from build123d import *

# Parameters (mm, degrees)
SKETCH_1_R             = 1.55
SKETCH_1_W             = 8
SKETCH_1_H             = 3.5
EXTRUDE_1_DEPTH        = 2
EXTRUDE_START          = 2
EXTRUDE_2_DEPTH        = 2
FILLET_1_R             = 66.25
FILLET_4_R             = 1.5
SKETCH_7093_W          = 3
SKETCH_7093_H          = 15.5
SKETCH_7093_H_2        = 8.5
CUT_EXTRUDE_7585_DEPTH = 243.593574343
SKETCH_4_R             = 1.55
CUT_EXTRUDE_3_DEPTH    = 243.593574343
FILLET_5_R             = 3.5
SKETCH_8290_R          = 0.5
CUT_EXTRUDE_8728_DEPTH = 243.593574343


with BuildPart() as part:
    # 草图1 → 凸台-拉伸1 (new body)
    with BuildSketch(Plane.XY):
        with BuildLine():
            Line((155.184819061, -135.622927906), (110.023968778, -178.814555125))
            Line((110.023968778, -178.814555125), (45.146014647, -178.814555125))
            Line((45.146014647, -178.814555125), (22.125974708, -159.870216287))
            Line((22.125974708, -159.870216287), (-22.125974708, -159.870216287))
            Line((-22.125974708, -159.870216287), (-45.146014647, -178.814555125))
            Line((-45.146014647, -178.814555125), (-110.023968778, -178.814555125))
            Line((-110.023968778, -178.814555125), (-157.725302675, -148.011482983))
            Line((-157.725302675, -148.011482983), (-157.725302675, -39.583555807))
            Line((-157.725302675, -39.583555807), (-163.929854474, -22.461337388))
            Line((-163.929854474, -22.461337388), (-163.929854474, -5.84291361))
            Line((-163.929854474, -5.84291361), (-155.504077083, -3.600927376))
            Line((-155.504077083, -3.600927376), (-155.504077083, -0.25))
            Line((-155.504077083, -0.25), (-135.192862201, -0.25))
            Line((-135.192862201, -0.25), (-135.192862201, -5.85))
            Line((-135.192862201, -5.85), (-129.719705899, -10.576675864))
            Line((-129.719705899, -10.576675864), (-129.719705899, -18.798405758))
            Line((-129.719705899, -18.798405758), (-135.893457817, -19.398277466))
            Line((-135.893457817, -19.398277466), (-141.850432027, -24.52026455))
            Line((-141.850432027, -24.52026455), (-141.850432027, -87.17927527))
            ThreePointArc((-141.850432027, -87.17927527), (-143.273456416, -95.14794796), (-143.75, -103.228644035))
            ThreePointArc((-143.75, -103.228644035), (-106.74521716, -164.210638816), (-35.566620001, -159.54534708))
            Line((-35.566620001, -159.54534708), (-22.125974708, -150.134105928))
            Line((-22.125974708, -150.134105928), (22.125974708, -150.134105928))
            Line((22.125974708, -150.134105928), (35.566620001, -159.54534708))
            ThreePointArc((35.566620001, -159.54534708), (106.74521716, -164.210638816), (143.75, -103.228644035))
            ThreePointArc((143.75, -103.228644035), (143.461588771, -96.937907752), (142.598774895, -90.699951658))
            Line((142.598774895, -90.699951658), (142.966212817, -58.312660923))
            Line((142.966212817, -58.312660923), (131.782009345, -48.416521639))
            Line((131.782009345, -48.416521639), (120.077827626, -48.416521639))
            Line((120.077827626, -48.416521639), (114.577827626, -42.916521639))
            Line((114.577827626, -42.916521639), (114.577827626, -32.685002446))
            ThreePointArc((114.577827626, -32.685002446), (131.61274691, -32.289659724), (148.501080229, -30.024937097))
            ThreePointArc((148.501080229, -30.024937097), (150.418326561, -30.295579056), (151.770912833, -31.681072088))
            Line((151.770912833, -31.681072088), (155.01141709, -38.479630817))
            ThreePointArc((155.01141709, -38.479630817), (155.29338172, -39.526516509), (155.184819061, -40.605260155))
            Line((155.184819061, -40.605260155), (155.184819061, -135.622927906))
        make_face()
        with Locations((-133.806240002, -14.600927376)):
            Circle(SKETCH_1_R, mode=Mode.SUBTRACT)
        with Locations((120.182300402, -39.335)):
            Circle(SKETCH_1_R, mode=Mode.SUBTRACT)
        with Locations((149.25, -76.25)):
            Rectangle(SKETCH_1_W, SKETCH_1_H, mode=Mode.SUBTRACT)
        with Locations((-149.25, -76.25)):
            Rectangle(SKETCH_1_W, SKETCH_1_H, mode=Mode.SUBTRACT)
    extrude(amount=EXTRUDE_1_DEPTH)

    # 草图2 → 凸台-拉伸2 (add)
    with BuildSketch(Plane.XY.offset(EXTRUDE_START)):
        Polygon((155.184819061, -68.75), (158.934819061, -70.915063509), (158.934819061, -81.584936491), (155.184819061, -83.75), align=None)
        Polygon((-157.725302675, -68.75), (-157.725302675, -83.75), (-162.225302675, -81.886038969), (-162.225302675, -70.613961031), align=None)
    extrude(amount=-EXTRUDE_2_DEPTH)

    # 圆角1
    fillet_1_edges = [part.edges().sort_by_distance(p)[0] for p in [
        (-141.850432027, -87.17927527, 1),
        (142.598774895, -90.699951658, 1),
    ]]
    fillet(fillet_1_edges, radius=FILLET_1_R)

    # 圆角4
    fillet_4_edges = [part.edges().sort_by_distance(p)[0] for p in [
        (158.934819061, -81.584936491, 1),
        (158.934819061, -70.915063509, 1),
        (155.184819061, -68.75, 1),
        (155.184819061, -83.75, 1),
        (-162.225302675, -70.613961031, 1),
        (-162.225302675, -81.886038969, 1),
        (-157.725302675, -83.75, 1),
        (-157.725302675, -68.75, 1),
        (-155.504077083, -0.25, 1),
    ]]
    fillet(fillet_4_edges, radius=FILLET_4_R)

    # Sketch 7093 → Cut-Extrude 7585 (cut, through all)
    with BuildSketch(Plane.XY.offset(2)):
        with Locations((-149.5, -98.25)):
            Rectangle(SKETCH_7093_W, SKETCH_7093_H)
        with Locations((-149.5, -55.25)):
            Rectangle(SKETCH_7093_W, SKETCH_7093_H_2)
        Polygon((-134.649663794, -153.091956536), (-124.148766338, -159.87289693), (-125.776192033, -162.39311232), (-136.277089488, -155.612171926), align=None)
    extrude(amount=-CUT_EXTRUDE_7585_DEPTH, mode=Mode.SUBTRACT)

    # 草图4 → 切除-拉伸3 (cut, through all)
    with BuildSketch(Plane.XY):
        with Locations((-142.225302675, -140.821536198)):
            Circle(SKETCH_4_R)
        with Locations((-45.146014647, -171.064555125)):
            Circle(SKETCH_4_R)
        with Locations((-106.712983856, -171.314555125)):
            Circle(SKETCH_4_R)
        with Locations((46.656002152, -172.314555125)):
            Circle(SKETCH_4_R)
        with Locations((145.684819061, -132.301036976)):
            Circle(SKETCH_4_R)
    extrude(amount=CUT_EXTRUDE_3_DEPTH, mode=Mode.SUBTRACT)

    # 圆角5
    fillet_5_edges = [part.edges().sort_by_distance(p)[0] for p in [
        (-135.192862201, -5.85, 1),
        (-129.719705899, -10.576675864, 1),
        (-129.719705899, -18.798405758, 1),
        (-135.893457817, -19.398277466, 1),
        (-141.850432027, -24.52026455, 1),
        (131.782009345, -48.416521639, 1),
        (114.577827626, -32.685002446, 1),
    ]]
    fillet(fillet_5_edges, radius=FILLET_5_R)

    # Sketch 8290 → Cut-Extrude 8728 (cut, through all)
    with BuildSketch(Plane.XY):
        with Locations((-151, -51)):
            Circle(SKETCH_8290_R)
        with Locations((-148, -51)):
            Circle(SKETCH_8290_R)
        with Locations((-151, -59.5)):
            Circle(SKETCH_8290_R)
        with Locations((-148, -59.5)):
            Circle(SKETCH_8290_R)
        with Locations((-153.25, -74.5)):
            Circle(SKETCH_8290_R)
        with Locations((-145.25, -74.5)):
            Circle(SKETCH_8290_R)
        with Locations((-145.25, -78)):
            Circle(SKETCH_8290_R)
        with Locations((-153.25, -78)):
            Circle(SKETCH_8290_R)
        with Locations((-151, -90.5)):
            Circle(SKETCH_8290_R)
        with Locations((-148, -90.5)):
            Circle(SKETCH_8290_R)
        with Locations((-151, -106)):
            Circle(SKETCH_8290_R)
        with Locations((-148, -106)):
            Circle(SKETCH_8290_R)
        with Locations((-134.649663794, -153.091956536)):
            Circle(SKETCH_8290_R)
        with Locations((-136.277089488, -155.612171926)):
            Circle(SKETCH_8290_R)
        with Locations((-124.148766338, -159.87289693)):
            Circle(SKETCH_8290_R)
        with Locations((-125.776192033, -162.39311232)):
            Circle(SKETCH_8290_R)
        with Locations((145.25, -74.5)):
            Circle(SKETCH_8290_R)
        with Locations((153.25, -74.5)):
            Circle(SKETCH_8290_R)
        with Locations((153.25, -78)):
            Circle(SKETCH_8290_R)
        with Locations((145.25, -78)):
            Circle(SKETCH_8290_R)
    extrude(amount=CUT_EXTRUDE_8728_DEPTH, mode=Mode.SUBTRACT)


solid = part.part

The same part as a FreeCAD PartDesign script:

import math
import FreeCAD as App
import Part
import Sketcher

V = App.Vector
Q = App.Units.Quantity


def edges_at(feature, points):
    """Names of the edges that pass closest to the given points."""
    edges = feature.Shape.Edges
    near = lambda p: min(range(len(edges)), key=lambda i: edges[i].distToShape(Part.Vertex(*p))[0])
    return sorted({f"Edge{near(p) + 1}" for p in points})

doc = App.newDocument("Part")
params = doc.addObject("Spreadsheet::Sheet", "Params")
for row, (alias, value) in enumerate([
    ("sketch1_radius", "3 mm"),
    ("sketch1_radius2", "3 mm"),
    ("sketch1_diameter", "3.1 mm"),
    ("sketch1_diameter2", "3.1 mm"),
    ("sketch1_width", "8 mm"),
    ("pad1_length", "2 mm"),
    ("sketch2_height", "15 mm"),
    ("pad2_length", "2 mm"),
    ("fillet_radius", "66.25 mm"),
    ("fillet2_radius", "1.5 mm"),
    ("sketch3_width", "3 mm"),
    ("sketch3_length", "3 mm"),
    ("sketch3_height", "15.5 mm"),
    ("sketch3_height2", "8.5 mm"),
    ("sketch3_length2", "12.5 mm"),
    ("sketch4_diameter", "3.1 mm"),
    ("fillet3_radius", "3.5 mm"),
    ("sketch5_diameter", "1 mm"),
], start=1):
    params.set(f"A{row}", alias)
    params.set(f"B{row}", "=" + value)
    params.setAlias(f"B{row}", alias)

body = doc.addObject("PartDesign::Body", "Body")

# Sketch on XY plane
sketch1 = body.newObject("Sketcher::SketchObject", "Sketch")
sketch1.AttachmentSupport = (doc.getObject("XY_Plane"), [""])
sketch1.MapMode = "FlatFace"
sketch1.addGeometry([
    Part.LineSegment(V(110.023969, -178.814555, 0), V(155.184819, -135.622928, 0)),  # 0
    Part.LineSegment(V(155.184819, -135.622928, 0), V(155.184819, -40.60526, 0)),  # 1
    Part.ArcOfCircle(Part.Circle(V(152.303314, -39.770437, 0), V(0, 0, 1), 3), math.radians(-16.157251), math.radians(25.484606)),  # 2
    Part.LineSegment(V(155.011417, -38.479631, 0), V(151.770913, -31.681072, 0)),  # 3
    Part.ArcOfCircle(Part.Circle(V(149.06281, -32.971878, 0), V(0, 0, 1), 3), math.radians(25.484606), math.radians(100.791949)),  # 4
    Part.ArcOfCircle(Part.Circle(V(119.508186, 122.077257, 0), V(0, 0, 1), 154.840774), math.radians(-91.82469), math.radians(-79.208051)),  # 5
    Part.LineSegment(V(114.577828, -32.685002, 0), V(114.577828, -42.916522, 0)),  # 6
    Part.LineSegment(V(114.577828, -42.916522, 0), V(120.077828, -48.416522, 0)),  # 7
    Part.LineSegment(V(120.077828, -48.416522, 0), V(131.782009, -48.416522, 0)),  # 8
    Part.LineSegment(V(131.782009, -48.416522, 0), V(142.966213, -58.312661, 0)),  # 9
    Part.LineSegment(V(142.966213, -58.312661, 0), V(142.598775, -90.699952, 0)),  # 10
    Part.ArcOfCircle(Part.Circle(V(75, -103.228644, 0), V(0, 0, 1), 68.75), math.radians(0), math.radians(10.5)),  # 11
    Part.ArcOfCircle(Part.Circle(V(75, -103.228644, 0), V(0, 0, 1), 68.75), math.radians(-125), math.radians(0)),  # 12
    Part.LineSegment(V(35.56662, -159.545347, 0), V(22.125975, -150.134106, 0)),  # 13
    Part.LineSegment(V(22.125975, -150.134106, 0), V(-22.125975, -150.134106, 0)),  # 14
    Part.LineSegment(V(-22.125975, -150.134106, 0), V(-35.56662, -159.545347, 0)),  # 15
    Part.ArcOfCircle(Part.Circle(V(-75, -103.228644, 0), V(0, 0, 1), 68.75), math.radians(180), math.radians(305)),  # 16
    Part.ArcOfCircle(Part.Circle(V(-75, -103.228644, 0), V(0, 0, 1), 68.75), math.radians(166.5), math.radians(180)),  # 17
    Part.LineSegment(V(-141.850432, -87.179275, 0), V(-141.850432, -24.520265, 0)),  # 18
    Part.LineSegment(V(-141.850432, -24.520265, 0), V(-135.893458, -19.398277, 0)),  # 19
    Part.LineSegment(V(-135.893458, -19.398277, 0), V(-129.719706, -18.798406, 0)),  # 20
    Part.LineSegment(V(-129.719706, -18.798406, 0), V(-129.719706, -10.576676, 0)),  # 21
    Part.LineSegment(V(-129.719706, -10.576676, 0), V(-135.192862, -5.85, 0)),  # 22
    Part.LineSegment(V(-135.192862, -5.85, 0), V(-135.192862, -0.25, 0)),  # 23
    Part.LineSegment(V(-135.192862, -0.25, 0), V(-155.504077, -0.25, 0)),  # 24
    Part.LineSegment(V(-155.504077, -0.25, 0), V(-155.504077, -3.600927, 0)),  # 25
    Part.LineSegment(V(-155.504077, -3.600927, 0), V(-163.929854, -5.842914, 0)),  # 26
    Part.LineSegment(V(-163.929854, -5.842914, 0), V(-163.929854, -22.461337, 0)),  # 27
    Part.LineSegment(V(-163.929854, -22.461337, 0), V(-157.725303, -39.583556, 0)),  # 28
    Part.LineSegment(V(-157.725303, -39.583556, 0), V(-157.725303, -148.011483, 0)),  # 29
    Part.LineSegment(V(-157.725303, -148.011483, 0), V(-110.023969, -178.814555, 0)),  # 30
    Part.LineSegment(V(-110.023969, -178.814555, 0), V(-45.146015, -178.814555, 0)),  # 31
    Part.LineSegment(V(-45.146015, -178.814555, 0), V(-22.125975, -159.870216, 0)),  # 32
    Part.LineSegment(V(-22.125975, -159.870216, 0), V(22.125975, -159.870216, 0)),  # 33
    Part.LineSegment(V(22.125975, -159.870216, 0), V(45.146015, -178.814555, 0)),  # 34
    Part.LineSegment(V(45.146015, -178.814555, 0), V(110.023969, -178.814555, 0)),  # 35
    Part.LineSegment(V(145.25, -78, 0), V(145.25, -74.5, 0)),  # 36
    Part.LineSegment(V(145.25, -74.5, 0), V(153.25, -74.5, 0)),  # 37
    Part.LineSegment(V(153.25, -74.5, 0), V(153.25, -78, 0)),  # 38
    Part.LineSegment(V(153.25, -78, 0), V(145.25, -78, 0)),  # 39
    Part.LineSegment(V(-153.25, -78, 0), V(-153.25, -74.5, 0)),  # 40
    Part.LineSegment(V(-153.25, -74.5, 0), V(-145.25, -74.5, 0)),  # 41
    Part.LineSegment(V(-145.25, -74.5, 0), V(-145.25, -78, 0)),  # 42
    Part.LineSegment(V(-145.25, -78, 0), V(-153.25, -78, 0)),  # 43
    Part.Circle(V(120.1823, -39.335, 0), V(0, 0, 1), 1.55),  # 44
    Part.Circle(V(-133.80624, -14.600927, 0), V(0, 0, 1), 1.55),  # 45
], False)
sketch1.addConstraint([
    Sketcher.Constraint("Coincident", 0, 2, 1, 1),
    Sketcher.Constraint("Coincident", 1, 2, 2, 1),
    Sketcher.Constraint("Coincident", 2, 2, 3, 1),
    Sketcher.Constraint("Coincident", 3, 2, 4, 1),
    Sketcher.Constraint("Coincident", 4, 2, 5, 2),
    Sketcher.Constraint("Coincident", 5, 1, 6, 1),
    Sketcher.Constraint("Coincident", 6, 2, 7, 1),
    Sketcher.Constraint("Coincident", 7, 2, 8, 1),
    Sketcher.Constraint("Coincident", 8, 2, 9, 1),
    Sketcher.Constraint("Coincident", 9, 2, 10, 1),
    Sketcher.Constraint("Coincident", 10, 2, 11, 2),
    Sketcher.Constraint("Coincident", 11, 1, 12, 2),
    Sketcher.Constraint("Coincident", 12, 1, 13, 1),
    Sketcher.Constraint("Coincident", 13, 2, 14, 1),
    Sketcher.Constraint("Coincident", 14, 2, 15, 1),
    Sketcher.Constraint("Coincident", 15, 2, 16, 2),
    Sketcher.Constraint("Coincident", 16, 1, 17, 2),
    Sketcher.Constraint("Coincident", 17, 1, 18, 1),
    Sketcher.Constraint("Coincident", 18, 2, 19, 1),
    Sketcher.Constraint("Coincident", 19, 2, 20, 1),
    Sketcher.Constraint("Coincident", 20, 2, 21, 1),
    Sketcher.Constraint("Coincident", 21, 2, 22, 1),
    Sketcher.Constraint("Coincident", 22, 2, 23, 1),
    Sketcher.Constraint("Coincident", 23, 2, 24, 1),
    Sketcher.Constraint("Coincident", 24, 2, 25, 1),
    Sketcher.Constraint("Coincident", 25, 2, 26, 1),
    Sketcher.Constraint("Coincident", 26, 2, 27, 1),
    Sketcher.Constraint("Coincident", 27, 2, 28, 1),
    Sketcher.Constraint("Coincident", 28, 2, 29, 1),
    Sketcher.Constraint("Coincident", 29, 2, 30, 1),
    Sketcher.Constraint("Coincident", 30, 2, 31, 1),
    Sketcher.Constraint("Coincident", 31, 2, 32, 1),
    Sketcher.Constraint("Coincident", 32, 2, 33, 1),
    Sketcher.Constraint("Coincident", 33, 2, 34, 1),
    Sketcher.Constraint("Coincident", 34, 2, 35, 1),
    Sketcher.Constraint("Coincident", 35, 2, 0, 1),
    Sketcher.Constraint("Coincident", 36, 2, 37, 1),
    Sketcher.Constraint("Coincident", 37, 2, 38, 1),
    Sketcher.Constraint("Coincident", 38, 2, 39, 1),
    Sketcher.Constraint("Coincident", 39, 2, 36, 1),
    Sketcher.Constraint("Coincident", 40, 2, 41, 1),
    Sketcher.Constraint("Coincident", 41, 2, 42, 1),
    Sketcher.Constraint("Coincident", 42, 2, 43, 1),
    Sketcher.Constraint("Coincident", 43, 2, 40, 1),
    Sketcher.Constraint("Vertical", 1),
    Sketcher.Constraint("Vertical", 6),
    Sketcher.Constraint("Horizontal", 8),
    Sketcher.Constraint("Horizontal", 14),
    Sketcher.Constraint("Vertical", 18),
    Sketcher.Constraint("Vertical", 21),
    Sketcher.Constraint("Vertical", 23),
    Sketcher.Constraint("Horizontal", 24),
    Sketcher.Constraint("Vertical", 25),
    Sketcher.Constraint("Vertical", 27),
    Sketcher.Constraint("Vertical", 29),
    Sketcher.Constraint("Horizontal", 31),
    Sketcher.Constraint("Horizontal", 33),
    Sketcher.Constraint("Horizontal", 35),
    Sketcher.Constraint("Vertical", 36),
    Sketcher.Constraint("Horizontal", 37),
    Sketcher.Constraint("Vertical", 38),
    Sketcher.Constraint("Horizontal", 39),
    Sketcher.Constraint("Vertical", 40),
    Sketcher.Constraint("Horizontal", 41),
    Sketcher.Constraint("Vertical", 42),
    Sketcher.Constraint("Horizontal", 43),
    Sketcher.Constraint("Coincident", 12, 3, 11, 3),
    Sketcher.Constraint("Coincident", 17, 3, 16, 3),
    Sketcher.Constraint("Radius", 2, 3.0),
    Sketcher.Constraint("Radius", 4, 3.0),
    Sketcher.Constraint("Diameter", 44, 3.1),
    Sketcher.Constraint("Diameter", 45, 3.1),
    Sketcher.Constraint("DistanceX", 37, 1, 37, 2, 8.0),
    Sketcher.Constraint("DistanceX", 41, 1, 41, 2, 8.0),
    Sketcher.Constraint("Radius", 11, 68.75),
    Sketcher.Constraint("Radius", 16, 68.75),
    Sketcher.Constraint("DistanceY", 23, 1, 23, 2, 5.6),
    Sketcher.Constraint("DistanceY", 36, 1, 36, 2, 3.5),
    Sketcher.Constraint("DistanceY", 40, 1, 40, 2, 3.5),
    Sketcher.Constraint("DistanceX", -1, 1, 11, 3, 75.0),
    Sketcher.Constraint("DistanceX", 16, 3, -1, 1, 75.0),
    Sketcher.Constraint("DistanceY", 38, 2, -1, 1, 78.0),
    Sketcher.Constraint("DistanceY", 42, 2, -1, 1, 78.0),
    Sketcher.Constraint("DistanceY", 45, 3, 25, 2, 11.0),
    Sketcher.Constraint("DistanceX", 6, 2, 7, 2, 5.5),
    Sketcher.Constraint("DistanceY", 7, 2, 6, 2, 5.5),
    Sketcher.Constraint("DistanceX", 11, 1, 36, 2, 1.5),
    Sketcher.Constraint("DistanceX", 40, 2, 16, 1, 9.5),
    Sketcher.Constraint("DistanceY", 22, 2, -1, 1, 5.85),
    Sketcher.Constraint("Distance", 13, 16.407998),
    Sketcher.Constraint("Distance", 15, 16.407998),
    Sketcher.Constraint("DistanceY", 44, 3, -1, 1, 39.335),
    Sketcher.Constraint("Radius", 5, 154.840774),
    Sketcher.Constraint("DistanceX", 8, 1, 8, 2, 11.704182),
    Sketcher.Constraint("DistanceX", 14, 2, 14, 1, 44.251949),
    Sketcher.Constraint("DistanceX", 33, 1, 33, 2, 44.251949),
    Sketcher.Constraint("DistanceY", 6, 2, 6, 1, 10.231519),
    Sketcher.Constraint("DistanceY", 18, 1, 18, 2, 62.659011),
    Sketcher.Constraint("DistanceY", 21, 1, 21, 2, 8.22173),
    Sketcher.Constraint("DistanceX", -1, 1, 44, 3, 120.1823),
    Sketcher.Constraint("DistanceY", 11, 3, 5, 3, 225.305901),
    Sketcher.Constraint("DistanceY", 16, 3, 5, 3, 225.305901),
    Sketcher.Constraint("DistanceX", 2, 2, 1, 2, 0.173402),
    Sketcher.Constraint("DistanceX", 3, 2, 2, 3, 0.532401),
    Sketcher.Constraint("DistanceY", 2, 3, 4, 2, 9.745499),
    Sketcher.Constraint("DistanceX", 8, 2, 4, 3, 17.280801),
    Sketcher.Constraint("DistanceX", 9, 2, 2, 3, 9.337102),
    Sketcher.Constraint("DistanceY", 9, 2, 1, 2, 17.707401),
    Sketcher.Constraint("DistanceX", 12, 1, 0, 2, 119.618199),
    Sketcher.Constraint("DistanceY", 19, 2, 21, 2, 8.821602),
    Sketcher.Constraint("DistanceY", 17, 1, 21, 2, 76.602599),
    Sketcher.Constraint("Distance", 0, 62.490152),
    Sketcher.Constraint("Distance", 22, 7.23166),
    Sketcher.Constraint("Distance", 30, 56.782449),
    Sketcher.Constraint("Distance", 32, 29.81292),
    Sketcher.Constraint("Distance", 34, 29.81292),
    Sketcher.Constraint("DistanceX", 24, 2, 24, 1, 20.311215),
    Sketcher.Constraint("DistanceX", 31, 1, 31, 2, 64.877954),
    Sketcher.Constraint("DistanceX", 35, 1, 35, 2, 64.877954),
    Sketcher.Constraint("DistanceY", 1, 1, 1, 2, 95.017668),
    Sketcher.Constraint("DistanceY", 25, 2, 25, 1, 3.350927),
    Sketcher.Constraint("DistanceY", 27, 2, 27, 1, 16.618424),
    Sketcher.Constraint("DistanceY", 29, 2, 29, 1, 108.427927),
    Sketcher.Constraint("DistanceX", -1, 1, 4, 3, 149.06281),
    Sketcher.Constraint("DistanceX", 45, 3, -1, 1, 133.80624),
    Sketcher.Constraint("DistanceX", -1, 1, 0, 2, 155.184819),
    Sketcher.Constraint("DistanceY", 1, 2, -1, 1, 40.60526),
    Sketcher.Constraint("DistanceY", 2, 2, -1, 1, 38.479631),
    Sketcher.Constraint("DistanceX", -1, 1, 4, 2, 148.50108),
    Sketcher.Constraint("DistanceY", 6, 2, -1, 1, 42.916522),
    Sketcher.Constraint("DistanceY", 10, 2, -1, 1, 90.699952),
    Sketcher.Constraint("DistanceX", 15, 2, -1, 1, 35.56662),
    Sketcher.Constraint("DistanceX", 30, 2, -1, 1, 110.023969),
    Sketcher.Constraint("DistanceX", -1, 1, 35, 2, 110.023969),
    Sketcher.Constraint("DistanceY", 14, 2, 16, 1, 46.905462),
    Sketcher.Constraint("DistanceY", 16, 1, 17, 1, 16.049369),
    Sketcher.Constraint("DistanceX", 19, 2, 20, 2, 6.173752),
    Sketcher.Constraint("DistanceX", 18, 2, 22, 2, 6.65757),
    Sketcher.Constraint("DistanceY", 18, 2, 26, 2, 18.677351),
    Sketcher.Constraint("DistanceX", 27, 2, 28, 2, 6.204552),
    Sketcher.Constraint("DistanceY", 28, 2, 27, 2, 17.122218),
    Sketcher.Constraint("DistanceX", 28, 2, 18, 2, 15.874871),
    Sketcher.Constraint("DistanceY", 35, 2, 11, 1, 75.585911),
])
sketch1.setExpression("Constraints[68]", "Params.sketch1_radius")
sketch1.setExpression("Constraints[69]", "Params.sketch1_radius2")
sketch1.setExpression("Constraints[70]", "Params.sketch1_diameter")
sketch1.setExpression("Constraints[71]", "Params.sketch1_diameter2")
sketch1.setExpression("Constraints[72]", "Params.sketch1_width")
pad1 = body.newObject("PartDesign::Pad", "Pad")
pad1.Profile = sketch1
pad1.setExpression("Length", "Params.pad1_length")

# Sketch on XY plane
sketch2 = body.newObject("Sketcher::SketchObject", "Sketch001")
sketch2.AttachmentSupport = (doc.getObject("XY_Plane"), [""])
sketch2.MapMode = "FlatFace"
sketch2.AttachmentOffset = App.Placement(V(0, 0, 2), App.Rotation())
sketch2.addGeometry([
    Part.LineSegment(V(158.9, -70.9, 0), V(155.2, -68.8, 0)),  # 0
    Part.LineSegment(V(155.2, -68.8, 0), V(155.2, -83.8, 0)),  # 1
    Part.LineSegment(V(155.2, -83.8, 0), V(158.9, -81.6, 0)),  # 2
    Part.LineSegment(V(158.9, -81.6, 0), V(158.9, -70.9, 0)),  # 3
    Part.LineSegment(V(-157.7, -83.8, 0), V(-157.7, -68.8, 0)),  # 4
    Part.LineSegment(V(-157.7, -68.8, 0), V(-162.2, -70.6, 0)),  # 5
    Part.LineSegment(V(-162.2, -70.6, 0), V(-162.2, -81.9, 0)),  # 6
    Part.LineSegment(V(-162.2, -81.9, 0), V(-157.7, -83.8, 0)),  # 7
], False)
sketch2.addConstraint([
    Sketcher.Constraint("Coincident", 0, 2, 1, 1),
    Sketcher.Constraint("Coincident", 1, 2, 2, 1),
    Sketcher.Constraint("Coincident", 2, 2, 3, 1),
    Sketcher.Constraint("Coincident", 3, 2, 0, 1),
    Sketcher.Constraint("Coincident", 4, 2, 5, 1),
    Sketcher.Constraint("Coincident", 5, 2, 6, 1),
    Sketcher.Constraint("Coincident", 6, 2, 7, 1),
    Sketcher.Constraint("Coincident", 7, 2, 4, 1),
    Sketcher.Constraint("Vertical", 1),
    Sketcher.Constraint("Vertical", 3),
    Sketcher.Constraint("Vertical", 4),
    Sketcher.Constraint("Vertical", 6),
    Sketcher.Constraint("Horizontal", 0, 2, 4, 2),
    Sketcher.Constraint("Horizontal", 1, 2, 7, 2),
    Sketcher.Constraint("Equal", 0, 2),
    Sketcher.Constraint("Equal", 5, 7),
    Sketcher.Constraint("DistanceY", 1, 2, 1, 1, 15.0),
    Sketcher.Constraint("Angle", 0, Q("150 deg")),
    Sketcher.Constraint("Angle", 5, Q("-157.5 deg")),
    Sketcher.Constraint("DistanceX", 5, 2, 4, 2, 4.5),
    Sketcher.Constraint("DistanceY", 0, 2, -1, 1, 68.75),
    Sketcher.Constraint("DistanceX", 1, 2, 2, 2, 3.75),
    Sketcher.Constraint("DistanceX", -1, 1, 0, 2, 155.184819),
    Sketcher.Constraint("DistanceX", 4, 2, 0, 2, 312.910122),
])
sketch2.setExpression("Constraints[16]", "Params.sketch2_height")
pad2 = body.newObject("PartDesign::Pad", "Pad001")
pad2.Profile = sketch2
pad2.setExpression("Length", "Params.pad2_length")
pad2.Reversed = True
doc.recompute()

fillet = body.newObject("PartDesign::Fillet", "Fillet")
fillet.Base = (pad2, edges_at(pad2, [(-141.85, -87.179, 1), (142.599, -90.7, 1)]))
fillet.setExpression("Radius", "Params.fillet_radius")
doc.recompute()

fillet2 = body.newObject("PartDesign::Fillet", "Fillet001")
fillet2.Base = (fillet, edges_at(fillet, [
    (158.935, -81.585, 1),
    (158.935, -70.915, 1),
    (155.185, -68.75, 1),
    (155.185, -83.75, 1),
    (-162.225, -70.614, 1),
    (-162.225, -81.886, 1),
    (-157.725, -83.75, 1),
    (-157.725, -68.75, 1),
    (-155.504, -0.25, 1),
]))
fillet2.setExpression("Radius", "Params.fillet2_radius")

# Sketch on XY plane
sketch3 = body.newObject("Sketcher::SketchObject", "Sketch002")
sketch3.AttachmentSupport = (doc.getObject("XY_Plane"), [""])
sketch3.MapMode = "FlatFace"
sketch3.AttachmentOffset = App.Placement(V(0, 0, 2), App.Rotation())
sketch3.addGeometry([
    Part.LineSegment(V(-151, -90.5, 0), V(-151, -106, 0)),  # 0
    Part.LineSegment(V(-151, -106, 0), V(-148, -106, 0)),  # 1
    Part.LineSegment(V(-148, -106, 0), V(-148, -90.5, 0)),  # 2
    Part.LineSegment(V(-148, -90.5, 0), V(-151, -90.5, 0)),  # 3
    Part.LineSegment(V(-151, -51, 0), V(-151, -59.5, 0)),  # 4
    Part.LineSegment(V(-151, -59.5, 0), V(-148, -59.5, 0)),  # 5
    Part.LineSegment(V(-148, -59.5, 0), V(-148, -51, 0)),  # 6
    Part.LineSegment(V(-148, -51, 0), V(-151, -51, 0)),  # 7
    Part.LineSegment(V(-124.1, -159.9, 0), V(-134.6, -153.1, 0)),  # 8
    Part.LineSegment(V(-134.6, -153.1, 0), V(-136.3, -155.6, 0)),  # 9
    Part.LineSegment(V(-136.3, -155.6, 0), V(-125.8, -162.4, 0)),  # 10
    Part.LineSegment(V(-125.8, -162.4, 0), V(-124.1, -159.9, 0)),  # 11
], False)
sketch3.addConstraint([
    Sketcher.Constraint("Coincident", 0, 2, 1, 1),
    Sketcher.Constraint("Coincident", 1, 2, 2, 1),
    Sketcher.Constraint("Coincident", 2, 2, 3, 1),
    Sketcher.Constraint("Coincident", 3, 2, 0, 1),
    Sketcher.Constraint("Coincident", 4, 2, 5, 1),
    Sketcher.Constraint("Coincident", 5, 2, 6, 1),
    Sketcher.Constraint("Coincident", 6, 2, 7, 1),
    Sketcher.Constraint("Coincident", 7, 2, 4, 1),
    Sketcher.Constraint("Coincident", 8, 2, 9, 1),
    Sketcher.Constraint("Coincident", 9, 2, 10, 1),
    Sketcher.Constraint("Coincident", 10, 2, 11, 1),
    Sketcher.Constraint("Coincident", 11, 2, 8, 1),
    Sketcher.Constraint("Vertical", 0),
    Sketcher.Constraint("Horizontal", 1),
    Sketcher.Constraint("Vertical", 2),
    Sketcher.Constraint("Horizontal", 3),
    Sketcher.Constraint("Vertical", 4),
    Sketcher.Constraint("Horizontal", 5),
    Sketcher.Constraint("Vertical", 6),
    Sketcher.Constraint("Horizontal", 7),
    Sketcher.Constraint("Perpendicular", 8, 9),
    Sketcher.Constraint("Perpendicular", 9, 10),
    Sketcher.Constraint("Perpendicular", 10, 11),
    Sketcher.Constraint("Vertical", 3, 2, 4, 2),
    Sketcher.Constraint("Vertical", 2, 2, 5, 2),
    Sketcher.Constraint("DistanceX", 1, 1, 1, 2, 3.0),
    Sketcher.Constraint("Distance", 9, 3.0),
    Sketcher.Constraint("DistanceY", 0, 2, 0, 1, 15.5),
    Sketcher.Constraint("DistanceY", 4, 2, 4, 1, 8.5),
    Sketcher.Constraint("DistanceX", 0, 2, -1, 1, 151.0),
    Sketcher.Constraint("DistanceY", 0, 2, -1, 1, 106.0),
    Sketcher.Constraint("DistanceY", 6, 2, -1, 1, 51.0),
    Sketcher.Constraint("Distance", 8, 12.5),
    Sketcher.Constraint("DistanceX", 9, 2, -1, 1, 136.277089),
    Sketcher.Constraint("DistanceY", 9, 2, -1, 1, 155.612172),
    Sketcher.Constraint("DistanceY", 10, 2, 9, 2, 6.78094),
])
sketch3.setExpression("Constraints[25]", "Params.sketch3_width")
sketch3.setExpression("Constraints[26]", "Params.sketch3_length")
sketch3.setExpression("Constraints[27]", "Params.sketch3_height")
sketch3.setExpression("Constraints[28]", "Params.sketch3_height2")
sketch3.setExpression("Constraints[32]", "Params.sketch3_length2")
pocket1 = body.newObject("PartDesign::Pocket", "Pocket")
pocket1.Profile = sketch3
pocket1.Type = "ThroughAll"

# Sketch on XY plane
sketch4 = body.newObject("Sketcher::SketchObject", "Sketch003")
sketch4.AttachmentSupport = (doc.getObject("XY_Plane"), [""])
sketch4.MapMode = "FlatFace"
sketch4.addGeometry([
    Part.Circle(V(-142.2, -140.8, 0), V(0, 0, 1), 1.6),  # 0
    Part.Circle(V(-45.1, -171.1, 0), V(0, 0, 1), 1.6),  # 1
    Part.Circle(V(-106.7, -171.3, 0), V(0, 0, 1), 1.6),  # 2
    Part.Circle(V(46.7, -172.3, 0), V(0, 0, 1), 1.6),  # 3
    Part.Circle(V(145.7, -132.3, 0), V(0, 0, 1), 1.6),  # 4
], False)
sketch4.addConstraint([
    Sketcher.Constraint("Equal", 0, 1),
    Sketcher.Constraint("Equal", 1, 2),
    Sketcher.Constraint("Equal", 2, 3),
    Sketcher.Constraint("Equal", 3, 4),
    Sketcher.Constraint("Diameter", 0, 3.1),
    Sketcher.Constraint("DistanceY", 3, 3, 2, 3, 1.0),
    Sketcher.Constraint("DistanceY", 2, 3, 1, 3, 0.25),
    Sketcher.Constraint("DistanceY", 0, 3, 4, 3, 8.520499),
    Sketcher.Constraint("DistanceX", -1, 1, 4, 3, 145.684819),
    Sketcher.Constraint("DistanceX", 0, 3, 1, 3, 97.079288),
    Sketcher.Constraint("DistanceY", 1, 3, 0, 3, 30.243019),
    Sketcher.Constraint("DistanceX", 0, 3, 2, 3, 35.512319),
    Sketcher.Constraint("DistanceX", 0, 3, 4, 3, 287.910122),
    Sketcher.Constraint("DistanceY", 0, 3, -1, 1, 140.821536),
    Sketcher.Constraint("DistanceX", -1, 1, 3, 3, 46.656002),
])
sketch4.setExpression("Constraints[4]", "Params.sketch4_diameter")
pocket2 = body.newObject("PartDesign::Pocket", "Pocket001")
pocket2.Profile = sketch4
pocket2.Type = "ThroughAll"
pocket2.Reversed = True
doc.recompute()

fillet3 = body.newObject("PartDesign::Fillet", "Fillet002")
fillet3.Base = (pocket2, edges_at(pocket2, [
    (-135.193, -5.85, 1),
    (-129.72, -10.577, 1),
    (-129.72, -18.798, 1),
    (-135.893, -19.398, 1),
    (-141.85, -24.52, 1),
    (131.782, -48.417, 1),
    (114.578, -32.685, 1),
]))
fillet3.setExpression("Radius", "Params.fillet3_radius")

# Sketch on XY plane
sketch5 = body.newObject("Sketcher::SketchObject", "Sketch004")
sketch5.AttachmentSupport = (doc.getObject("XY_Plane"), [""])
sketch5.MapMode = "FlatFace"
sketch5.addGeometry([
    Part.Circle(V(-151, -51, 0), V(0, 0, 1), 0.5),  # 0
    Part.Circle(V(-148, -51, 0), V(0, 0, 1), 0.5),  # 1
    Part.Circle(V(-151, -59.5, 0), V(0, 0, 1), 0.5),  # 2
    Part.Circle(V(-148, -59.5, 0), V(0, 0, 1), 0.5),  # 3
    Part.Circle(V(-153.2, -74.5, 0), V(0, 0, 1), 0.5),  # 4
    Part.Circle(V(-145.2, -74.5, 0), V(0, 0, 1), 0.5),  # 5
    Part.Circle(V(-145.2, -78, 0), V(0, 0, 1), 0.5),  # 6
    Part.Circle(V(-153.2, -78, 0), V(0, 0, 1), 0.5),  # 7
    Part.Circle(V(-151, -90.5, 0), V(0, 0, 1), 0.5),  # 8
    Part.Circle(V(-148, -90.5, 0), V(0, 0, 1), 0.5),  # 9
    Part.Circle(V(-151, -106, 0), V(0, 0, 1), 0.5),  # 10
    Part.Circle(V(-148, -106, 0), V(0, 0, 1), 0.5),  # 11
    Part.Circle(V(-134.6, -153.1, 0), V(0, 0, 1), 0.5),  # 12
    Part.Circle(V(-136.3, -155.6, 0), V(0, 0, 1), 0.5),  # 13
    Part.Circle(V(-124.1, -159.9, 0), V(0, 0, 1), 0.5),  # 14
    Part.Circle(V(-125.8, -162.4, 0), V(0, 0, 1), 0.5),  # 15
    Part.Circle(V(145.2, -74.5, 0), V(0, 0, 1), 0.5),  # 16
    Part.Circle(V(153.2, -74.5, 0), V(0, 0, 1), 0.5),  # 17
    Part.Circle(V(153.2, -78, 0), V(0, 0, 1), 0.5),  # 18
    Part.Circle(V(145.2, -78, 0), V(0, 0, 1), 0.5),  # 19
], False)
sketch5.addConstraint([
    Sketcher.Constraint("Equal", 0, 1),
    Sketcher.Constraint("Equal", 1, 2),
    Sketcher.Constraint("Equal", 2, 3),
    Sketcher.Constraint("Equal", 3, 4),
    Sketcher.Constraint("Equal", 4, 5),
    Sketcher.Constraint("Equal", 5, 6),
    Sketcher.Constraint("Equal", 6, 7),
    Sketcher.Constraint("Equal", 7, 8),
    Sketcher.Constraint("Equal", 8, 9),
    Sketcher.Constraint("Equal", 9, 10),
    Sketcher.Constraint("Equal", 10, 11),
    Sketcher.Constraint("Equal", 11, 12),
    Sketcher.Constraint("Equal", 12, 13),
    Sketcher.Constraint("Equal", 13, 14),
    Sketcher.Constraint("Equal", 14, 15),
    Sketcher.Constraint("Equal", 15, 16),
    Sketcher.Constraint("Equal", 16, 17),
    Sketcher.Constraint("Equal", 17, 18),
    Sketcher.Constraint("Equal", 18, 19),
    Sketcher.Constraint("Symmetric", 5, 3, 16, 3, -2),
    Sketcher.Constraint("Symmetric", 4, 3, 17, 3, -2),
    Sketcher.Constraint("Symmetric", 7, 3, 18, 3, -2),
    Sketcher.Constraint("Symmetric", 6, 3, 19, 3, -2),
    Sketcher.Constraint("Horizontal", 0, 3, 1, 3),
    Sketcher.Constraint("Horizontal", 2, 3, 3, 3),
    Sketcher.Constraint("Horizontal", 4, 3, 5, 3),
    Sketcher.Constraint("Horizontal", 6, 3, 7, 3),
    Sketcher.Constraint("Horizontal", 8, 3, 9, 3),
    Sketcher.Constraint("Horizontal", 10, 3, 11, 3),
    Sketcher.Constraint("Vertical", 0, 3, 2, 3),
    Sketcher.Constraint("Vertical", 1, 3, 3, 3),
    Sketcher.Constraint("Vertical", 5, 3, 6, 3),
    Sketcher.Constraint("Vertical", 4, 3, 7, 3),
    Sketcher.Constraint("Vertical", 2, 3, 8, 3),
    Sketcher.Constraint("Vertical", 3, 3, 9, 3),
    Sketcher.Constraint("Vertical", 8, 3, 10, 3),
    Sketcher.Constraint("Vertical", 9, 3, 11, 3),
    Sketcher.Constraint("Diameter", 0, 1.0),
    Sketcher.Constraint("DistanceX", 0, 3, -1, 1, 151.0),
    Sketcher.Constraint("DistanceY", 0, 3, -1, 1, 51.0),
    Sketcher.Constraint("DistanceX", 1, 3, -1, 1, 148.0),
    Sketcher.Constraint("DistanceY", 6, 3, -1, 1, 78.0),
    Sketcher.Constraint("DistanceY", 10, 3, -1, 1, 106.0),
    Sketcher.Constraint("DistanceY", 4, 3, 2, 3, 15.0),
    Sketcher.Constraint("DistanceX", 4, 3, 5, 3, 8.0),
    Sketcher.Constraint("DistanceY", 8, 3, 4, 3, 16.0),
    Sketcher.Constraint("DistanceY", 2, 3, -1, 1, 59.5),
    Sketcher.Constraint("DistanceX", 5, 3, 16, 3, 290.5),
    Sketcher.Constraint("DistanceX", 13, 3, -1, 1, 136.277089),
    Sketcher.Constraint("DistanceY", 13, 3, -1, 1, 155.612172),
    Sketcher.Constraint("DistanceY", 14, 3, 12, 3, 6.78094),
    Sketcher.Constraint("DistanceY", 15, 3, 13, 3, 6.78094),
    Sketcher.Constraint("DistanceX", 12, 3, 15, 3, 8.873472),
    Sketcher.Constraint("DistanceX", 12, 3, -1, 1, 134.649664),
    Sketcher.Constraint("DistanceY", 12, 3, -1, 1, 153.091957),
    Sketcher.Constraint("DistanceX", 14, 3, -1, 1, 124.148766),
])
sketch5.setExpression("Constraints[37]", "Params.sketch5_diameter")
pocket3 = body.newObject("PartDesign::Pocket", "Pocket002")
pocket3.Profile = sketch5
pocket3.Type = "ThroughAll"
pocket3.Reversed = True

doc.recompute()
